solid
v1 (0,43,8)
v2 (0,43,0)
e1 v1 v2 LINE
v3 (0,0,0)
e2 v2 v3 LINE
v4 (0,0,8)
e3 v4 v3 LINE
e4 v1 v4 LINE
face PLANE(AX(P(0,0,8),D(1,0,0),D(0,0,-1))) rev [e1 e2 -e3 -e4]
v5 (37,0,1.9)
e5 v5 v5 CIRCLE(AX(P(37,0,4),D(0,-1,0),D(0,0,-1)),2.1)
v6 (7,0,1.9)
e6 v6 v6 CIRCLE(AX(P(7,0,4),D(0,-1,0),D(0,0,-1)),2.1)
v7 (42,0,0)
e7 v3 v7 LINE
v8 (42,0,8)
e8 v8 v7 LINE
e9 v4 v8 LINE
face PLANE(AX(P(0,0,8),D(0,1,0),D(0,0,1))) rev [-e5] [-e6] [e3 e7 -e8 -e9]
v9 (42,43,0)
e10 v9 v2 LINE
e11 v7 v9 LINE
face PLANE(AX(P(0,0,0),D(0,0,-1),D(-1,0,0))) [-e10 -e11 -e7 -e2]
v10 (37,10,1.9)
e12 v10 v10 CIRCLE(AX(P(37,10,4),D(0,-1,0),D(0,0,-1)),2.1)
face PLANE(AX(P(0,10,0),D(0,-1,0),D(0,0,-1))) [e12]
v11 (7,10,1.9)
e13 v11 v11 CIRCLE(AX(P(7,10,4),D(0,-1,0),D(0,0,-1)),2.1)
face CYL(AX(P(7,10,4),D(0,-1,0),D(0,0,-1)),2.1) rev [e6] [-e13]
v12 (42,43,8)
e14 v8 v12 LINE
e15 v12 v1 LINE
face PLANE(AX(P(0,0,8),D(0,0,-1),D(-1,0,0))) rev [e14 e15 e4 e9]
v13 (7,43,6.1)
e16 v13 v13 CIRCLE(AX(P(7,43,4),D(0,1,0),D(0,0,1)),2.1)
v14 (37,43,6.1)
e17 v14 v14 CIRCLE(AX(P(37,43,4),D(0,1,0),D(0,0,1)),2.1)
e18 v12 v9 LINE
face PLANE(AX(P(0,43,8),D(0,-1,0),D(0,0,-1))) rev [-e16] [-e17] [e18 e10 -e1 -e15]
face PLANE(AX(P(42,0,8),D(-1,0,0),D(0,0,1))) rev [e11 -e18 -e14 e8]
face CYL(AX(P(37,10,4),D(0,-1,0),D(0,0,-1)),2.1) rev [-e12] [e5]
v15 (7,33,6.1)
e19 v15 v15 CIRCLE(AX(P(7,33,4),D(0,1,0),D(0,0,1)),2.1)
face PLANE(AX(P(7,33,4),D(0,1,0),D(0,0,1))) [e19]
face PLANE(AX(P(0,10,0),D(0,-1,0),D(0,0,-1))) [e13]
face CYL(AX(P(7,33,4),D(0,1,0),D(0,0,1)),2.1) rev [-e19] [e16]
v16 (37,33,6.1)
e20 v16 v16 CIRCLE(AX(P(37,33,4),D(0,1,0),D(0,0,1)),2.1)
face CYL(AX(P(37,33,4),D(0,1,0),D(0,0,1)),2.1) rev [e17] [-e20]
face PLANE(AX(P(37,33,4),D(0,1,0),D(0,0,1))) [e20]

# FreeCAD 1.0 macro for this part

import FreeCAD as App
import Part
import Sketcher

V = App.Vector

doc = App.newDocument("Part")
body = doc.addObject("PartDesign::Body", "Body")

# Sketch on XY plane
sketch1 = body.newObject("Sketcher::SketchObject", "Sketch")
sketch1.AttachmentSupport = (doc.getObject("XY_Plane"), [""])
sketch1.MapMode = "FlatFace"
sketch1.addGeometry(Part.LineSegment(V(0, 43, 0), V(0, 0, 0)), False)
sketch1.addGeometry(Part.LineSegment(V(0, 0, 0), V(42, 0, 0)), False)
sketch1.addGeometry(Part.LineSegment(V(42, 0, 0), V(42, 43, 0)), False)
sketch1.addGeometry(Part.LineSegment(V(42, 43, 0), V(0, 43, 0)), False)
sketch1.addConstraint(Sketcher.Constraint("Coincident", 0, 2, 1, 1))
sketch1.addConstraint(Sketcher.Constraint("Coincident", 1, 2, 2, 1))
sketch1.addConstraint(Sketcher.Constraint("Coincident", 2, 2, 3, 1))
sketch1.addConstraint(Sketcher.Constraint("Coincident", 3, 2, 0, 1))
sketch1.addConstraint(Sketcher.Constraint("Vertical", 0))
sketch1.addConstraint(Sketcher.Constraint("Horizontal", 1))
sketch1.addConstraint(Sketcher.Constraint("Vertical", 2))
sketch1.addConstraint(Sketcher.Constraint("Horizontal", 3))
sketch1.addConstraint(Sketcher.Constraint("Coincident", 0, 2, -1, 1))
sketch1.addConstraint(Sketcher.Constraint("DistanceX", 1, 1, 1, 2, 42.0))
sketch1.addConstraint(Sketcher.Constraint("DistanceY", 0, 2, 0, 1, 43.0))
pad1 = body.newObject("PartDesign::Pad", "Pad")
pad1.Profile = sketch1
pad1.Length = 8

# Sketch on XZ plane
sketch2 = body.newObject("Sketcher::SketchObject", "Sketch001")
sketch2.AttachmentSupport = (doc.getObject("XZ_Plane"), [""])
sketch2.MapMode = "FlatFace"
sketch2.addGeometry(Part.Circle(V(37, 4, 0), V(0, 0, 1), 2.1), False)
sketch2.addGeometry(Part.Circle(V(7, 4, 0), V(0, 0, 1), 2.1), False)
sketch2.addConstraint(Sketcher.Constraint("Equal", 0, 1))
sketch2.addConstraint(Sketcher.Constraint("Horizontal", 0, 3, 1, 3))
sketch2.addConstraint(Sketcher.Constraint("Diameter", 0, 4.2))
sketch2.addConstraint(Sketcher.Constraint("DistanceX", -1, 1, 0, 3, 37.0))
sketch2.addConstraint(Sketcher.Constraint("DistanceY", -1, 1, 0, 3, 4.0))
sketch2.addConstraint(Sketcher.Constraint("DistanceX", -1, 1, 1, 3, 7.0))
pocket1 = body.newObject("PartDesign::Pocket", "Pocket")
pocket1.Profile = sketch2
pocket1.Length = 10

# Sketch on XZ plane
sketch3 = body.newObject("Sketcher::SketchObject", "Sketch002")
sketch3.AttachmentSupport = (doc.getObject("XZ_Plane"), [""])
sketch3.MapMode = "FlatFace"
sketch3.AttachmentOffset = App.Placement(V(0, 0, -43), App.Rotation())
sketch3.addGeometry(Part.Circle(V(37, 4, 0), V(0, 0, 1), 2.1), False)
sketch3.addGeometry(Part.Circle(V(7, 4, 0), V(0, 0, 1), 2.1), False)
sketch3.addConstraint(Sketcher.Constraint("Equal", 0, 1))
sketch3.addConstraint(Sketcher.Constraint("Horizontal", 0, 3, 1, 3))
sketch3.addConstraint(Sketcher.Constraint("Diameter", 0, 4.2))
sketch3.addConstraint(Sketcher.Constraint("DistanceX", -1, 1, 0, 3, 37.0))
sketch3.addConstraint(Sketcher.Constraint("DistanceY", -1, 1, 0, 3, 4.0))
sketch3.addConstraint(Sketcher.Constraint("DistanceX", -1, 1, 1, 3, 7.0))
pocket2 = body.newObject("PartDesign::Pocket", "Pocket001")
pocket2.Profile = sketch3
pocket2.Length = 10
pocket2.Reversed = True

doc.recompute()
